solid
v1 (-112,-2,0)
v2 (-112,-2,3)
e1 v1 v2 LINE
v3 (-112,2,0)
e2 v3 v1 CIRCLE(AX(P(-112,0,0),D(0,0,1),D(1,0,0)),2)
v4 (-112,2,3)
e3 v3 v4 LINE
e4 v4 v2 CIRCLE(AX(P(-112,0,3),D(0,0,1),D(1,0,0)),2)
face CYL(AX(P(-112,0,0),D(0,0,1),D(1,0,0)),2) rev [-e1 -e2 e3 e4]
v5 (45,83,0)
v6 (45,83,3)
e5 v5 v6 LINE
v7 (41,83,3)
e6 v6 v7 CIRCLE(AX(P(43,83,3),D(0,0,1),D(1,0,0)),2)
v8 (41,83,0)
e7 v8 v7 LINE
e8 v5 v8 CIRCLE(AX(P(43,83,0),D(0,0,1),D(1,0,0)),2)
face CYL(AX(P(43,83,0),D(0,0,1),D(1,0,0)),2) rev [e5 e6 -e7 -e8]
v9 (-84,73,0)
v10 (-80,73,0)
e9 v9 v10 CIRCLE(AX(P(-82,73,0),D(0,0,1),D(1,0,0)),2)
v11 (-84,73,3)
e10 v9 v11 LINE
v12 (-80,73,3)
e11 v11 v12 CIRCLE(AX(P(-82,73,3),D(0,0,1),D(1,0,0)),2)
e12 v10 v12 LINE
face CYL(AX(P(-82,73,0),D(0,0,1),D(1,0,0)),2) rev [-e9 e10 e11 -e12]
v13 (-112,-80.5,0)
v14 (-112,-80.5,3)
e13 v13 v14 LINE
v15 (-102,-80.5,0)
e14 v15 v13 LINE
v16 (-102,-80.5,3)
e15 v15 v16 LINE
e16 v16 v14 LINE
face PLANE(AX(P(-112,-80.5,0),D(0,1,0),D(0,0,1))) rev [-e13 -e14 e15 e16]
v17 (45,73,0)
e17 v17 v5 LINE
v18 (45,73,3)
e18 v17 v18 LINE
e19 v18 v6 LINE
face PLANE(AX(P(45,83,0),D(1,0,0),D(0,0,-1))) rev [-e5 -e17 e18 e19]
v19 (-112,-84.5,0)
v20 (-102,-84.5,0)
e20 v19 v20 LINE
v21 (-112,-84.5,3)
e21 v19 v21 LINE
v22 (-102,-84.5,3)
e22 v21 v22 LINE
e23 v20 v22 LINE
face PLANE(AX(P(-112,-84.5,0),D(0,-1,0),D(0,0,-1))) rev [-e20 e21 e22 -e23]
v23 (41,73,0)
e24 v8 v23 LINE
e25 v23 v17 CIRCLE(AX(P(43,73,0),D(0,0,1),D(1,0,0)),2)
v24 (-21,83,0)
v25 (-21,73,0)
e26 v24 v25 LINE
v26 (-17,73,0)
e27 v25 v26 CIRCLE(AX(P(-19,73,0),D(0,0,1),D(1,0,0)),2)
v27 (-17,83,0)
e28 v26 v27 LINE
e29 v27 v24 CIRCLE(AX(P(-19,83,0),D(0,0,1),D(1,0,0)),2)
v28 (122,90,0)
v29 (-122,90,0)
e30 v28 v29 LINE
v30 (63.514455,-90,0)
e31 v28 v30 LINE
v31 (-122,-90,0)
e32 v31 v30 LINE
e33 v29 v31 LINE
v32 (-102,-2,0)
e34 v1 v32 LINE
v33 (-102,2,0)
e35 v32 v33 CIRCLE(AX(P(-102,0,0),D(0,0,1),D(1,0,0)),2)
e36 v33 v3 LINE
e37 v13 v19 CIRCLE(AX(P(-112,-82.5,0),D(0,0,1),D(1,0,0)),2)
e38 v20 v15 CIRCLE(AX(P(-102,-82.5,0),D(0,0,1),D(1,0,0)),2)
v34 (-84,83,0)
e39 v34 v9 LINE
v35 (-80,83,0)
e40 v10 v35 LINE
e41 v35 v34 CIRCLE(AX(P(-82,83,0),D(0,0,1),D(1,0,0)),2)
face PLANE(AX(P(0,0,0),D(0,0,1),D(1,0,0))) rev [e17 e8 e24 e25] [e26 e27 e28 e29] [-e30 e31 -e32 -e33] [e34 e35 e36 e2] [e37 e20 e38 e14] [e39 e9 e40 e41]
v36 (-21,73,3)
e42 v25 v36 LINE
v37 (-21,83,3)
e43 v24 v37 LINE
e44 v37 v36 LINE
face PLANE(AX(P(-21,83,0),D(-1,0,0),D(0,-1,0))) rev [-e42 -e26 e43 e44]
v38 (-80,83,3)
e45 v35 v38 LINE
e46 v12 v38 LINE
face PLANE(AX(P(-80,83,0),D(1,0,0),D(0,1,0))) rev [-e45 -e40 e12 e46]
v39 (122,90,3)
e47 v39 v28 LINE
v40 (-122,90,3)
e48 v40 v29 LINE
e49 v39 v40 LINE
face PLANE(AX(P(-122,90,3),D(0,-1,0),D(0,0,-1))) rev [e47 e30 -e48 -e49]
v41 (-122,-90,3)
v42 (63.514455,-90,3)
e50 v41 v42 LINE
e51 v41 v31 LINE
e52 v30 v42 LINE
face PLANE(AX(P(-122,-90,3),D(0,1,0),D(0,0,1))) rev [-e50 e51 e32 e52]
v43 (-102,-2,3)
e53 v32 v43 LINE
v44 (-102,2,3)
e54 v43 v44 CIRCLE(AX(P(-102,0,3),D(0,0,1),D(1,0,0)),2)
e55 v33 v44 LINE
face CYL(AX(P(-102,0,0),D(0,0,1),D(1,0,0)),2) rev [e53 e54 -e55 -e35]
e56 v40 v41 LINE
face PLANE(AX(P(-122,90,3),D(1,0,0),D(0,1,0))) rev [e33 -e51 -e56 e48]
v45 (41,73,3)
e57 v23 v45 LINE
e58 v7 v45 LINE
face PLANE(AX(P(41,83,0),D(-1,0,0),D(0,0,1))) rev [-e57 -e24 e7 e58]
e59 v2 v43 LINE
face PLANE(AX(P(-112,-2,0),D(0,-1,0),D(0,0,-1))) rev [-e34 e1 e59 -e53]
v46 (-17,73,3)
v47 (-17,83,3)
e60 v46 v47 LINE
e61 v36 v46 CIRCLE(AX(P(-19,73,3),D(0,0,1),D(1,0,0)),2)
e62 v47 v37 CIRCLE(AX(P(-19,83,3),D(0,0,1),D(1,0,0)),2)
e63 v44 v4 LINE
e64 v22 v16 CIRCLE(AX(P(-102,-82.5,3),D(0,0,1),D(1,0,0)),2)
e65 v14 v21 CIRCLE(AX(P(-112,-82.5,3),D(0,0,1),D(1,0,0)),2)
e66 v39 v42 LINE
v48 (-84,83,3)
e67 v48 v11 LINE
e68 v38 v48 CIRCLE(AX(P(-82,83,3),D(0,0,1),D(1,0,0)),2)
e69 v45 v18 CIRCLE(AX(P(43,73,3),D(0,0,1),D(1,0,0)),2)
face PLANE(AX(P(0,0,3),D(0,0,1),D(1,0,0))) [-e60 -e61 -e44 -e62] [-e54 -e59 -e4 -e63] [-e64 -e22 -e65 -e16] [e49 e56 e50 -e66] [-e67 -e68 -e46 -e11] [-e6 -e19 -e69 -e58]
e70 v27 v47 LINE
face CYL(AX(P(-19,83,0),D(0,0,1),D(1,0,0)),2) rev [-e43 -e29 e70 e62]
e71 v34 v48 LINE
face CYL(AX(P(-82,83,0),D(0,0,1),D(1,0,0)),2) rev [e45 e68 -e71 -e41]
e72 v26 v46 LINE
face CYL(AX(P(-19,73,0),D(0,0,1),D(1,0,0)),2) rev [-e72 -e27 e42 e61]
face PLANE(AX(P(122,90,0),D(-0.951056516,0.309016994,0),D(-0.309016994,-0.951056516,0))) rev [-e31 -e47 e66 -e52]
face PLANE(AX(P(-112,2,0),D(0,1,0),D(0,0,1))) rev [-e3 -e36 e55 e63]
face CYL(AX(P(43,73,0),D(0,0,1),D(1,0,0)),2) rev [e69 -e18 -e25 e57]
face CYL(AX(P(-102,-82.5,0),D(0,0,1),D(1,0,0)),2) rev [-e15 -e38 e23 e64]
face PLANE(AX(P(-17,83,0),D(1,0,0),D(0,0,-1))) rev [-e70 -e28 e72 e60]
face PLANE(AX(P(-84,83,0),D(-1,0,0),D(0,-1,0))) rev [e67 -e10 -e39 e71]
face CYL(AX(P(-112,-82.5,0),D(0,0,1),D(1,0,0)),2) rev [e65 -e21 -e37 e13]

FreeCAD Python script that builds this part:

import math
import FreeCAD as App
import Part
import Sketcher
Q = App.Units.Quantity


def add_polygon(sketch, points):
    """Adds a closed chain of lines whose ends are joined by coincident constraints."""
    first, n = sketch.GeometryCount, len(points)
    for a, b in zip(points, points[1:] + points[:1]):
        sketch.addGeometry(Part.LineSegment(App.Vector(*a, 0), App.Vector(*b, 0)), False)
    for i in range(n):
        sketch.addConstraint(Sketcher.Constraint("Coincident", first + i, 2, first + (i + 1) % n, 1))

doc = App.newDocument("Part")
body = doc.addObject("PartDesign::Body", "Body")

# Sketch on XY plane
sketch1 = body.newObject("Sketcher::SketchObject", "Sketch")
sketch1.AttachmentSupport = (doc.getObject("XY_Plane"), [""])
sketch1.MapMode = "FlatFace"
add_polygon(sketch1, [(-122, 90), (-122, -90), (122, -90), (122, 90)])  # lines 0-3
sketch1.addConstraint(Sketcher.Constraint("Vertical", 0))
sketch1.addConstraint(Sketcher.Constraint("Horizontal", 1))
sketch1.addConstraint(Sketcher.Constraint("Vertical", 2))
sketch1.addConstraint(Sketcher.Constraint("Horizontal", 3))
sketch1.addConstraint(Sketcher.Constraint("Symmetric", 0, 2, 2, 2, -1, 1))
sketch1.addConstraint(Sketcher.Constraint("DistanceX", 1, 1, 1, 2, Q("244 mm")))
sketch1.addConstraint(Sketcher.Constraint("DistanceY", 0, 2, 0, 1, Q("180 mm")))
pad1 = body.newObject("PartDesign::Pad", "Pad")
pad1.Profile = sketch1
pad1.Length = 3

# Sketch on XY plane
sketch2 = body.newObject("Sketcher::SketchObject", "Sketch001")
sketch2.AttachmentSupport = (doc.getObject("XY_Plane"), [""])
sketch2.MapMode = "FlatFace"
sketch2.AttachmentOffset = App.Placement(App.Vector(0, 0, 3), App.Rotation())
add_polygon(sketch2, [(122, 90), (63.514455, -90), (122, -90)])  # lines 0-2
sketch2.addConstraint(Sketcher.Constraint("Horizontal", 1))
sketch2.addConstraint(Sketcher.Constraint("Vertical", 2))
sketch2.addConstraint(Sketcher.Constraint("DistanceY", 2, 1, 2, 2, Q("180 mm")))
sketch2.addConstraint(Sketcher.Constraint("Angle", 0, Q("-108 deg")))
sketch2.addConstraint(Sketcher.Constraint("DistanceY", 0, 2, -1, 1, Q("90 mm")))
sketch2.addConstraint(Sketcher.Constraint("DistanceX", -1, 1, 1, 2, Q("122 mm")))
pocket1 = body.newObject("PartDesign::Pocket", "Pocket")
pocket1.Profile = sketch2
pocket1.Length = 3

# Sketch on XY plane
sketch3 = body.newObject("Sketcher::SketchObject", "Sketch002")
sketch3.AttachmentSupport = (doc.getObject("XY_Plane"), [""])
sketch3.MapMode = "FlatFace"
sketch3.AttachmentOffset = App.Placement(App.Vector(0, 0, 3), App.Rotation())
sketch3.addGeometry(Part.LineSegment(App.Vector(-80, 73, 0), App.Vector(-80, 83, 0)), False)
sketch3.addGeometry(Part.ArcOfCircle(Part.Circle(App.Vector(-82, 83, 0), App.Vector(0, 0, 1), 2), math.radians(0), math.radians(180)), False)
sketch3.addGeometry(Part.LineSegment(App.Vector(-84, 83, 0), App.Vector(-84, 73, 0)), False)
sketch3.addGeometry(Part.ArcOfCircle(Part.Circle(App.Vector(-82, 73, 0), App.Vector(0, 0, 1), 2), math.radians(180), math.radians(360)), False)
sketch3.addGeometry(Part.LineSegment(App.Vector(-17, 73, 0), App.Vector(-17, 83, 0)), False)
sketch3.addGeometry(Part.ArcOfCircle(Part.Circle(App.Vector(-19, 83, 0), App.Vector(0, 0, 1), 2), math.radians(0), math.radians(180)), False)
sketch3.addGeometry(Part.LineSegment(App.Vector(-21, 83, 0), App.Vector(-21, 73, 0)), False)
sketch3.addGeometry(Part.ArcOfCircle(Part.Circle(App.Vector(-19, 73, 0), App.Vector(0, 0, 1), 2), math.radians(180), math.radians(360)), False)
sketch3.addGeometry(Part.LineSegment(App.Vector(45, 73, 0), App.Vector(45, 83, 0)), False)
sketch3.addGeometry(Part.ArcOfCircle(Part.Circle(App.Vector(43, 83, 0), App.Vector(0, 0, 1), 2), math.radians(0), math.radians(180)), False)
sketch3.addGeometry(Part.LineSegment(App.Vector(41, 83, 0), App.Vector(41, 73, 0)), False)
sketch3.addGeometry(Part.ArcOfCircle(Part.Circle(App.Vector(43, 73, 0), App.Vector(0, 0, 1), 2), math.radians(180), math.radians(360)), False)
sketch3.addGeometry(Part.LineSegment(App.Vector(-102, 2, 0), App.Vector(-112, 2, 0)), False)
sketch3.addGeometry(Part.ArcOfCircle(Part.Circle(App.Vector(-112, 0, 0), App.Vector(0, 0, 1), 2), math.radians(90), math.radians(270)), False)
sketch3.addGeometry(Part.LineSegment(App.Vector(-112, -2, 0), App.Vector(-102, -2, 0)), False)
sketch3.addGeometry(Part.ArcOfCircle(Part.Circle(App.Vector(-102, 0, 0), App.Vector(0, 0, 1), 2), math.radians(-90), math.radians(90)), False)
sketch3.addGeometry(Part.LineSegment(App.Vector(-102, -80.5, 0), App.Vector(-112, -80.5, 0)), False)
sketch3.addGeometry(Part.ArcOfCircle(Part.Circle(App.Vector(-112, -82.5, 0), App.Vector(0, 0, 1), 2), math.radians(90), math.radians(270)), False)
sketch3.addGeometry(Part.LineSegment(App.Vector(-112, -84.5, 0), App.Vector(-102, -84.5, 0)), False)
sketch3.addGeometry(Part.ArcOfCircle(Part.Circle(App.Vector(-102, -82.5, 0), App.Vector(0, 0, 1), 2), math.radians(-90), math.radians(90)), False)
sketch3.addConstraint(Sketcher.Constraint("Tangent", 0, 2, 1, 1))
sketch3.addConstraint(Sketcher.Constraint("Tangent", 1, 2, 2, 1))
sketch3.addConstraint(Sketcher.Constraint("Tangent", 2, 2, 3, 1))
sketch3.addConstraint(Sketcher.Constraint("Tangent", 3, 2, 0, 1))
sketch3.addConstraint(Sketcher.Constraint("Tangent", 4, 2, 5, 1))
sketch3.addConstraint(Sketcher.Constraint("Tangent", 5, 2, 6, 1))
sketch3.addConstraint(Sketcher.Constraint("Tangent", 6, 2, 7, 1))
sketch3.addConstraint(Sketcher.Constraint("Tangent", 7, 2, 4, 1))
sketch3.addConstraint(Sketcher.Constraint("Tangent", 8, 2, 9, 1))
sketch3.addConstraint(Sketcher.Constraint("Tangent", 9, 2, 10, 1))
sketch3.addConstraint(Sketcher.Constraint("Tangent", 10, 2, 11, 1))
sketch3.addConstraint(Sketcher.Constraint("Tangent", 11, 2, 8, 1))
sketch3.addConstraint(Sketcher.Constraint("Tangent", 12, 2, 13, 1))
sketch3.addConstraint(Sketcher.Constraint("Tangent", 13, 2, 14, 1))
sketch3.addConstraint(Sketcher.Constraint("Tangent", 14, 2, 15, 1))
sketch3.addConstraint(Sketcher.Constraint("Tangent", 15, 2, 12, 1))
sketch3.addConstraint(Sketcher.Constraint("Tangent", 16, 2, 17, 1))
sketch3.addConstraint(Sketcher.Constraint("Tangent", 17, 2, 18, 1))
sketch3.addConstraint(Sketcher.Constraint("Tangent", 18, 2, 19, 1))
sketch3.addConstraint(Sketcher.Constraint("Tangent", 19, 2, 16, 1))
sketch3.addConstraint(Sketcher.Constraint("Vertical", 0))
sketch3.addConstraint(Sketcher.Constraint("Vertical", 2))
sketch3.addConstraint(Sketcher.Constraint("Vertical", 4))
sketch3.addConstraint(Sketcher.Constraint("Vertical", 6))
sketch3.addConstraint(Sketcher.Constraint("Vertical", 8))
sketch3.addConstraint(Sketcher.Constraint("Vertical", 10))
sketch3.addConstraint(Sketcher.Constraint("Horizontal", 12))
sketch3.addConstraint(Sketcher.Constraint("Horizontal", 14))
sketch3.addConstraint(Sketcher.Constraint("Horizontal", 16))
sketch3.addConstraint(Sketcher.Constraint("Horizontal", 18))
sketch3.addConstraint(Sketcher.Constraint("Equal", 3, 5))
sketch3.addConstraint(Sketcher.Constraint("Equal", 7, 9))
sketch3.addConstraint(Sketcher.Constraint("Equal", 11, 13))
sketch3.addConstraint(Sketcher.Constraint("Equal", 15, 17))
sketch3.addConstraint(Sketcher.Constraint("PointOnObject", 13, 3, -1))
sketch3.addConstraint(Sketcher.Constraint("Horizontal", 1, 3, 5, 3))
sketch3.addConstraint(Sketcher.Constraint("Horizontal", 3, 3, 7, 3))
sketch3.addConstraint(Sketcher.Constraint("Horizontal", 5, 3, 9, 3))
sketch3.addConstraint(Sketcher.Constraint("Horizontal", 7, 3, 11, 3))
sketch3.addConstraint(Sketcher.Constraint("Vertical", 13, 3, 17, 3))
sketch3.addConstraint(Sketcher.Constraint("Vertical", 15, 3, 19, 3))
sketch3.addConstraint(Sketcher.Constraint("Equal", 18, 0))
sketch3.addConstraint(Sketcher.Constraint("Radius", 1, Q("2 mm")))
sketch3.addConstraint(Sketcher.Constraint("DistanceX", 12, 2, 12, 1, Q("10 mm")))
sketch3.addConstraint(Sketcher.Constraint("DistanceX", 1, 3, -1, 1, Q("82 mm")))
sketch3.addConstraint(Sketcher.Constraint("DistanceY", -1, 1, 1, 3, Q("83 mm")))
sketch3.addConstraint(Sketcher.Constraint("DistanceX", 5, 3, -1, 1, Q("19 mm")))
sketch3.addConstraint(Sketcher.Constraint("DistanceX", -1, 1, 9, 3, Q("43 mm")))
sketch3.addConstraint(Sketcher.Constraint("DistanceX", 13, 3, -1, 1, Q("112 mm")))
sketch3.addConstraint(Sketcher.Constraint("DistanceY", 17, 3, -1, 1, Q("82.5 mm")))
pocket2 = body.newObject("PartDesign::Pocket", "Pocket001")
pocket2.Profile = sketch3
pocket2.Length = 3

doc.recompute()
